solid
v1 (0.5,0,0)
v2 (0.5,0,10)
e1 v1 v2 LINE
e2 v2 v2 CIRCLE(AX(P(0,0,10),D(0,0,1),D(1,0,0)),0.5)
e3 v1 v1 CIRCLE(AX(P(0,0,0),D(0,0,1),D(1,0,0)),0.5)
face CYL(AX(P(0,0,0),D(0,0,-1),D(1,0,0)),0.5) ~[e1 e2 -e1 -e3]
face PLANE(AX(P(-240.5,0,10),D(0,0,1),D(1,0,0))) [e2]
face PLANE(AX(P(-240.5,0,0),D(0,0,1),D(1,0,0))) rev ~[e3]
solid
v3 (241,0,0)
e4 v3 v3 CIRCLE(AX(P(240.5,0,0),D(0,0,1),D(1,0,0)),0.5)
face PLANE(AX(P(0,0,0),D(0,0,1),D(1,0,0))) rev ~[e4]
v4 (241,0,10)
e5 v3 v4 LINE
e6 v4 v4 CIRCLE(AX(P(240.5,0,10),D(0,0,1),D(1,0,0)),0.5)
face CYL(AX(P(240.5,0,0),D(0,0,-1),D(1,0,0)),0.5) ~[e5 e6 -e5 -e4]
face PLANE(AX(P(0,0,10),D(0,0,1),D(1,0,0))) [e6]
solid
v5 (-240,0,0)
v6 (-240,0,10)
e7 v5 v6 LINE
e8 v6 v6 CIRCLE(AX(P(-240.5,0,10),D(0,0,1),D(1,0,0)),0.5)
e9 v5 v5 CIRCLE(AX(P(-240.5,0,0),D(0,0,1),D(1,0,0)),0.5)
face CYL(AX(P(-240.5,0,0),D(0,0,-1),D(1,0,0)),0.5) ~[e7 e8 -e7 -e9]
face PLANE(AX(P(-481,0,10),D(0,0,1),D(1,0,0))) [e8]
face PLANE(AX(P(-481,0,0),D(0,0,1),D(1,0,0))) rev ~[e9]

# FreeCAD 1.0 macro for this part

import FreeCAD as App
import Part
import Sketcher
Q = App.Units.Quantity

doc = App.newDocument("Part")
body = doc.addObject("PartDesign::Body", "Body")
body.AllowCompound = True

# Sketch on XY plane
sketch1 = body.newObject("Sketcher::SketchObject", "Sketch")
sketch1.AttachmentSupport = (doc.getObject("XY_Plane"), [""])
sketch1.MapMode = "FlatFace"
sketch1.addGeometry(Part.Circle(App.Vector(240.5, 0, 0), App.Vector(0, 0, 1), 0.5), False)
sketch1.addConstraint([
    Sketcher.Constraint("PointOnObject", 0, 3, -1),
    Sketcher.Constraint("Diameter", 0, Q("1 mm")),
    Sketcher.Constraint("DistanceX", -1, 1, 0, 3, Q("240.5 mm")),
])
pad1 = body.newObject("PartDesign::Pad", "Pad")
pad1.Profile = sketch1
pad1.Length = 10
doc.recompute()

linearpattern = body.newObject("PartDesign::LinearPattern", "LinearPattern")
linearpattern.Originals = [pad1]
linearpattern.Direction = (doc.getObject("X_Axis"), [""])
linearpattern.Mode = "offset"
linearpattern.Offset = 240.5
linearpattern.Occurrences = 3
linearpattern.Reversed = True
body.Tip = linearpattern

doc.recompute()
